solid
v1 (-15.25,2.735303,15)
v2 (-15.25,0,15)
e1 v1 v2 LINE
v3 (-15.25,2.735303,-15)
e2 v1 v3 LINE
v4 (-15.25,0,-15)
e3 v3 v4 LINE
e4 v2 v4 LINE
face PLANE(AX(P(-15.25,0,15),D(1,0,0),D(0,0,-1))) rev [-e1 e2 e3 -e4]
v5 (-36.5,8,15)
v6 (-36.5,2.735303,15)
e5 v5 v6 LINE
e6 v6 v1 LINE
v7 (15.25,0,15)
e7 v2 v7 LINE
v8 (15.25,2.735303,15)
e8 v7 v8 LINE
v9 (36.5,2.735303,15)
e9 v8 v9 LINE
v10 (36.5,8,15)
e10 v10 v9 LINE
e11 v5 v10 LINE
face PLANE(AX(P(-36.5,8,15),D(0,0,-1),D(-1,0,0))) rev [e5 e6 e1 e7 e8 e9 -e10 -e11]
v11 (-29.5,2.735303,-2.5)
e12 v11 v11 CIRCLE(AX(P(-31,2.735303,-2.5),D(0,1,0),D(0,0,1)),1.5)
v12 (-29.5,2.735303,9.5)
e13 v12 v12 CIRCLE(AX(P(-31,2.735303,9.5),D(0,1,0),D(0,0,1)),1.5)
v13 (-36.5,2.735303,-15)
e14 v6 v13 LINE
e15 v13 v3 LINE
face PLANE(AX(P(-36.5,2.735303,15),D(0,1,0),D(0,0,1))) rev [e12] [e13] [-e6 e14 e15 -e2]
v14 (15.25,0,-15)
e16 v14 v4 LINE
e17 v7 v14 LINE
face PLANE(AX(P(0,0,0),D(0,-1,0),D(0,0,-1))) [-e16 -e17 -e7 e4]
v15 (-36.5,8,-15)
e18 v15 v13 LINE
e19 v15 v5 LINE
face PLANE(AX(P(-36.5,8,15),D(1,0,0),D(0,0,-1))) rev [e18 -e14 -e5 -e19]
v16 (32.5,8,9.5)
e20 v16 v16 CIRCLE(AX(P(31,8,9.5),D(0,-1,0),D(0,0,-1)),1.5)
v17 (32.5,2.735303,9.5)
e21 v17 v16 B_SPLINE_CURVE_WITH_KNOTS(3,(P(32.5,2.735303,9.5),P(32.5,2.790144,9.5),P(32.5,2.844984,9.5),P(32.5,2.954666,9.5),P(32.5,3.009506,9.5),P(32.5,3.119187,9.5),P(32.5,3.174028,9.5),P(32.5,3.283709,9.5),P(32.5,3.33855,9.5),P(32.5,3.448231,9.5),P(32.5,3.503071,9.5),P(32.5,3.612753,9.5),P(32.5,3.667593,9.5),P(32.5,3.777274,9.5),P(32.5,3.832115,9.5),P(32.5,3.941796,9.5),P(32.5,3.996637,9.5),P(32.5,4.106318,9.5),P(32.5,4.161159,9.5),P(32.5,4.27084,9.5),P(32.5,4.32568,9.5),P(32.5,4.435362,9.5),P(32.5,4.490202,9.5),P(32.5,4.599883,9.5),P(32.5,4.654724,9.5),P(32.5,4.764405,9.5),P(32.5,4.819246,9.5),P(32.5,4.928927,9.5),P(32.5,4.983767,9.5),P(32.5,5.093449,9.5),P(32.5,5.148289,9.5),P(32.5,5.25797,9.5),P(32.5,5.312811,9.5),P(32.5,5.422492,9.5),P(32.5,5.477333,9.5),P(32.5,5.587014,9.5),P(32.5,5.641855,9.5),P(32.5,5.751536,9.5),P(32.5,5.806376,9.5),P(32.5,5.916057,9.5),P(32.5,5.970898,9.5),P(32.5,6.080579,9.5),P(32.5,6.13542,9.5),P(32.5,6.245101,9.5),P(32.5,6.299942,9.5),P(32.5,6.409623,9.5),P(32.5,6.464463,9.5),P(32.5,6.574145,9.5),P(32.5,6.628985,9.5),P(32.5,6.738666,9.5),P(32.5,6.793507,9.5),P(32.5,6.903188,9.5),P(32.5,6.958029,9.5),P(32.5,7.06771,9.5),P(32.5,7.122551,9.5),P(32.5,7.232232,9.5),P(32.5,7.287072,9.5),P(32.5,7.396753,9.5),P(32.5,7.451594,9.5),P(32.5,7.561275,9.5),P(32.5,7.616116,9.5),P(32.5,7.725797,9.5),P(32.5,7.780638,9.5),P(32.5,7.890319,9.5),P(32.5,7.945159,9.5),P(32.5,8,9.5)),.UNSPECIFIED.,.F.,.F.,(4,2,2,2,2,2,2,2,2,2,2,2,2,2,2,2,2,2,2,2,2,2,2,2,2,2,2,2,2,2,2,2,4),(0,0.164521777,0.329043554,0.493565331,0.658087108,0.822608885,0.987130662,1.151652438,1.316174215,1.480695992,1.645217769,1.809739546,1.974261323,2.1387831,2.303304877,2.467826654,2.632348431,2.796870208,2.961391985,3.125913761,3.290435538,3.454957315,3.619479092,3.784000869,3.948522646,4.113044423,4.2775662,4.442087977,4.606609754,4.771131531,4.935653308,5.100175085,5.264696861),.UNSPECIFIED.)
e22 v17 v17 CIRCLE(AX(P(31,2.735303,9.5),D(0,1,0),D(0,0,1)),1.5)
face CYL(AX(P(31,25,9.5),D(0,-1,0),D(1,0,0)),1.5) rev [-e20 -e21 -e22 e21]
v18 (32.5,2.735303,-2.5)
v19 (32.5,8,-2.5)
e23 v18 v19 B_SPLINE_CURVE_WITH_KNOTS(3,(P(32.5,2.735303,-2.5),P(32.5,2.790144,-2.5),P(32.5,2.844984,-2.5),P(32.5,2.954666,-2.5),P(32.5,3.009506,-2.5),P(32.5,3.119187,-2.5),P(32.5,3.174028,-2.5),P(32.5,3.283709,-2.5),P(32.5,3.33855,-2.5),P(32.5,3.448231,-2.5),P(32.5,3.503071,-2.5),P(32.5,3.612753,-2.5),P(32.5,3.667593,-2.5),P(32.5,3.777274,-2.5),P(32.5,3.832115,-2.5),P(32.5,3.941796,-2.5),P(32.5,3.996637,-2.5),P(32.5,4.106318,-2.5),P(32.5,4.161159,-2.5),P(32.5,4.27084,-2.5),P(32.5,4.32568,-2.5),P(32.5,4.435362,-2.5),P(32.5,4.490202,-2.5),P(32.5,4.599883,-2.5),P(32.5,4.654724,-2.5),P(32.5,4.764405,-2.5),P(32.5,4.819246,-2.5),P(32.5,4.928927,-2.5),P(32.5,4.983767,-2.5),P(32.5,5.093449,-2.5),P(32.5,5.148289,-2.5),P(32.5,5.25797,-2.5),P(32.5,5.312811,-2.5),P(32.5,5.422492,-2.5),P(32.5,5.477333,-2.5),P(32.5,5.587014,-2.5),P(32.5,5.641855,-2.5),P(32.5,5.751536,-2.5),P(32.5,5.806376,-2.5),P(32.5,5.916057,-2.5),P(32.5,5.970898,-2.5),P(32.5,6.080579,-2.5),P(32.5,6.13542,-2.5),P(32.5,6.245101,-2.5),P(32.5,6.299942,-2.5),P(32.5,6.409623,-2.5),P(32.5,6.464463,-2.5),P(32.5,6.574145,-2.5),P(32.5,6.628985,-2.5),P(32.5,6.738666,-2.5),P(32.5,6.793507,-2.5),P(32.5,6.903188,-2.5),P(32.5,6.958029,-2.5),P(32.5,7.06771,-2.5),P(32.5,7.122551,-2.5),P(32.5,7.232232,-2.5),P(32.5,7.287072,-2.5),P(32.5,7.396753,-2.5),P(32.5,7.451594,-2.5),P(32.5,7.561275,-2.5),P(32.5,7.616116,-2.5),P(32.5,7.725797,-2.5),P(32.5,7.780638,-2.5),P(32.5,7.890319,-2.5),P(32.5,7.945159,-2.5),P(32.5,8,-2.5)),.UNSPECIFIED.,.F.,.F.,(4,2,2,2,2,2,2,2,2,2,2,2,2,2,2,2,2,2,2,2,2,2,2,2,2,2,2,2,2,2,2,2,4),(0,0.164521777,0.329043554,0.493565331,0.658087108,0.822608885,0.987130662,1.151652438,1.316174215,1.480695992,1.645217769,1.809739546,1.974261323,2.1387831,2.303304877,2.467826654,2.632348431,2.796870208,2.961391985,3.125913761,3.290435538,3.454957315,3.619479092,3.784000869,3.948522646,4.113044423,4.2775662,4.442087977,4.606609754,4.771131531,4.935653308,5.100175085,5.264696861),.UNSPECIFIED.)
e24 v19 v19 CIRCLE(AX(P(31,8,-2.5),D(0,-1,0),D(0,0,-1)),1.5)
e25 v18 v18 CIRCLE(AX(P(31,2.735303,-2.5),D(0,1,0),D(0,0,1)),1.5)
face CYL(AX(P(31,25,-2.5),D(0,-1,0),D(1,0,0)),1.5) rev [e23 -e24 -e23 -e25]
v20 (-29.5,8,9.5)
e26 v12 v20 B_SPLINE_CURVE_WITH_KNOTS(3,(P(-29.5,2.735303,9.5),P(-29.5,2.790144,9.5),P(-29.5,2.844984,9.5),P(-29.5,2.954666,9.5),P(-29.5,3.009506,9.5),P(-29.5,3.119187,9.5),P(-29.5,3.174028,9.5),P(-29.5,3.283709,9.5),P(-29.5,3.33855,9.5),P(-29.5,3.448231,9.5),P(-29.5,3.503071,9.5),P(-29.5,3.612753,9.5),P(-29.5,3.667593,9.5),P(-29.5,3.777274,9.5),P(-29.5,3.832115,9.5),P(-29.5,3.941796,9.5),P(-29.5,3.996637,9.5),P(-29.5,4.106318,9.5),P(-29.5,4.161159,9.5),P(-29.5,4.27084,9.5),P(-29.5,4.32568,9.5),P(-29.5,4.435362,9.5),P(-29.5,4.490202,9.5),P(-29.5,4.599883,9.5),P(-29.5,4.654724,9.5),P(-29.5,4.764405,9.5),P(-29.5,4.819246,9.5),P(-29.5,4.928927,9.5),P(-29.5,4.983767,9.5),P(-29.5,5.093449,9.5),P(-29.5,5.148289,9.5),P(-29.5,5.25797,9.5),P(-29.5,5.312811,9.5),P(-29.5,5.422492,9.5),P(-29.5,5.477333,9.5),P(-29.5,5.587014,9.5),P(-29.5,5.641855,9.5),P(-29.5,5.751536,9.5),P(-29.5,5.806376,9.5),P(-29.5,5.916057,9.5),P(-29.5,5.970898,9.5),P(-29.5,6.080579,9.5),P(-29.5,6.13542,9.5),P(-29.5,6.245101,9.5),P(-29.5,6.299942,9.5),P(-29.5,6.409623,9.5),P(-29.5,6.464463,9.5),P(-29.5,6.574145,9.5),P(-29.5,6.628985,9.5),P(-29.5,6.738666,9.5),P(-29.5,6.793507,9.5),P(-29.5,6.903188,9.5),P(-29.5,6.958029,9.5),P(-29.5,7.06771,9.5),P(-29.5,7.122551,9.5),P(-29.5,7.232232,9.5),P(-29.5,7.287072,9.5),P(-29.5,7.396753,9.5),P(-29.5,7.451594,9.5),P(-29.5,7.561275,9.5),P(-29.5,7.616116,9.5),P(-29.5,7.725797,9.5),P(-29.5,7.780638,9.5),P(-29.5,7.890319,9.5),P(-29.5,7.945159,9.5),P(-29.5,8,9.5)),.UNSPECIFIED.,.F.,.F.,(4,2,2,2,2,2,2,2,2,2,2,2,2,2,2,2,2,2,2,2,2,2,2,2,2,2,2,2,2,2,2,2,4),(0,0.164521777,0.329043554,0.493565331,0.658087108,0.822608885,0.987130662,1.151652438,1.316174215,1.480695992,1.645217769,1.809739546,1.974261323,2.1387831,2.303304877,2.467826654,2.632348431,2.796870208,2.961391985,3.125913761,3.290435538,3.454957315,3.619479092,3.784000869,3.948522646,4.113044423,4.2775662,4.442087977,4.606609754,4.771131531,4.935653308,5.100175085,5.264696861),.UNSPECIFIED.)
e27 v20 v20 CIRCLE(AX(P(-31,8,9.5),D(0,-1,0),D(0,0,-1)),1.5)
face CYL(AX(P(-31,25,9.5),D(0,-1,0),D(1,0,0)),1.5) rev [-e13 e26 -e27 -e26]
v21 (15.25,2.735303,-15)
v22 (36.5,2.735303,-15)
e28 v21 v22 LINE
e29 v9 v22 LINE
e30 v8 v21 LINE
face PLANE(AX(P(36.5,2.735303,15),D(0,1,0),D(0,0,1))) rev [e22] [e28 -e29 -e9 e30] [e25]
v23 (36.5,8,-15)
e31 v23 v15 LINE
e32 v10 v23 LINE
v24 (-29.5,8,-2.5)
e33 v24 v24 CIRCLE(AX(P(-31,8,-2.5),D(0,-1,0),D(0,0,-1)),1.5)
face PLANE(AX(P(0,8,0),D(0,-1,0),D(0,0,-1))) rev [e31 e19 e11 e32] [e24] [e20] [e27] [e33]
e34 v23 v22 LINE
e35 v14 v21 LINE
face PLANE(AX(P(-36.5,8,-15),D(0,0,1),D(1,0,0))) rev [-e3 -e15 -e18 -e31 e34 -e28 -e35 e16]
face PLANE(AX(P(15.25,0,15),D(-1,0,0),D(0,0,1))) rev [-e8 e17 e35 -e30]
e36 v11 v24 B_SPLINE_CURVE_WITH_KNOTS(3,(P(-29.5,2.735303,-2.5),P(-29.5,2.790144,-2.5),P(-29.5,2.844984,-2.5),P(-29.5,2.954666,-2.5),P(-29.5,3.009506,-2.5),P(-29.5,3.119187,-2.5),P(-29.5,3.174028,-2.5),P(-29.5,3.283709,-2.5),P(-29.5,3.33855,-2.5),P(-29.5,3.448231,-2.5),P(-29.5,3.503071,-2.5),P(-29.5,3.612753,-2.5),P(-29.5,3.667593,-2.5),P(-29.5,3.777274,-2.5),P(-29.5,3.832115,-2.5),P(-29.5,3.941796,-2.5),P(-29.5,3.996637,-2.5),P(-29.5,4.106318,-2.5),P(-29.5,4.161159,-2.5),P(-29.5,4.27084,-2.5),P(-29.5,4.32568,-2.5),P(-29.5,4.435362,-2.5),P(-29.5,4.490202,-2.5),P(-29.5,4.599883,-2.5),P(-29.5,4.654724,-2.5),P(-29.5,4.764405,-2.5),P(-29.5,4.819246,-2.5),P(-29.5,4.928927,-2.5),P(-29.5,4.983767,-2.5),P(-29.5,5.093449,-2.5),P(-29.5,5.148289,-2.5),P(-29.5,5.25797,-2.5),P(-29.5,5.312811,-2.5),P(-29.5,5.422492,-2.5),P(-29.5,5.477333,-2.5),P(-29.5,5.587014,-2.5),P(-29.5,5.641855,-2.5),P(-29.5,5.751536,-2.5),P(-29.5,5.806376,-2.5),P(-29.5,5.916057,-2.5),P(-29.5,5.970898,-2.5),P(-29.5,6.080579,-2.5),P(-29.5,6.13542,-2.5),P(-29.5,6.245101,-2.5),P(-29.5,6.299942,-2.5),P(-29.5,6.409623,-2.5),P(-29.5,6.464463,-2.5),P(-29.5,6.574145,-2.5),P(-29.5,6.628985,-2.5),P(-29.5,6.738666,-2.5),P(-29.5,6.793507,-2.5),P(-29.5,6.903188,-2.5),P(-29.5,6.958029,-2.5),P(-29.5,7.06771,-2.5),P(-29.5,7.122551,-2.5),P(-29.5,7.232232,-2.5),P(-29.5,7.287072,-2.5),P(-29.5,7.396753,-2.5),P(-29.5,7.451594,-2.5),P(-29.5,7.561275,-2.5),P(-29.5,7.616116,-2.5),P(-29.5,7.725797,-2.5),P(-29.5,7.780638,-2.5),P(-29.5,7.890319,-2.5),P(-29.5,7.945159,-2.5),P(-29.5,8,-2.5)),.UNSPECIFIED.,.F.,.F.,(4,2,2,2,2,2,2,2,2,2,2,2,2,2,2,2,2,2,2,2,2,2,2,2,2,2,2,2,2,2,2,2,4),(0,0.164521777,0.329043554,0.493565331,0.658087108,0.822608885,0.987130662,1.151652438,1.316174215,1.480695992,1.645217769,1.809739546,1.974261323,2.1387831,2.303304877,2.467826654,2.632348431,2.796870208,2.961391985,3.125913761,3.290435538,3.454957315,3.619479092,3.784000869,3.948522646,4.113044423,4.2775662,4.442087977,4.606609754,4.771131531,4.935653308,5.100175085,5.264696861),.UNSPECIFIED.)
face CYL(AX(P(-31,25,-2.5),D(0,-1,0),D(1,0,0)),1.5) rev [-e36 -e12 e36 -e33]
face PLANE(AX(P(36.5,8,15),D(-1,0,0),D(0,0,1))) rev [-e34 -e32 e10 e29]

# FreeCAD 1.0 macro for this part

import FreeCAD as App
import Part
import Sketcher

V = App.Vector
Q = App.Units.Quantity

doc = App.newDocument("Part")
params = doc.addObject("Spreadsheet::Sheet", "Params")
for row, (alias, value) in enumerate([
    ("sketch1_width", "73 mm"),
    ("sketch1_height", "30 mm"),
    ("pad1_length", "8 mm"),
    ("sketch2_width", "21.25 mm"),
    ("sketch3_diameter", "3 mm"),
    ("pocket2_length", "90 mm"),
], start=1):
    params.set(f"A{row}", alias)
    params.set(f"B{row}", "=" + value)
    params.setAlias(f"B{row}", alias)

body = doc.addObject("PartDesign::Body", "Body")

sketch1 = body.newObject("Sketcher::SketchObject", "Sketch")
sketch1.AttachmentSupport = (doc.getObject("XZ_Plane"), [""])
sketch1.MapMode = "FlatFace"
sketch1.addGeometry(Part.LineSegment(V(-36, -15, 0), V(-36, 15, 0)), False)
sketch1.addGeometry(Part.LineSegment(V(-36, 15, 0), V(36, 15, 0)), False)
sketch1.addGeometry(Part.LineSegment(V(36, 15, 0), V(36, -15, 0)), False)
sketch1.addGeometry(Part.LineSegment(V(36, -15, 0), V(-36, -15, 0)), False)
sketch1.addConstraint(Sketcher.Constraint("Coincident", 0, 2, 1, 1))
sketch1.addConstraint(Sketcher.Constraint("Coincident", 1, 2, 2, 1))
sketch1.addConstraint(Sketcher.Constraint("Coincident", 2, 2, 3, 1))
sketch1.addConstraint(Sketcher.Constraint("Coincident", 3, 2, 0, 1))
sketch1.addConstraint(Sketcher.Constraint("Vertical", 0))
sketch1.addConstraint(Sketcher.Constraint("Horizontal", 1))
sketch1.addConstraint(Sketcher.Constraint("Vertical", 2))
sketch1.addConstraint(Sketcher.Constraint("Horizontal", 3))
sketch1.addConstraint(Sketcher.Constraint("Symmetric", 0, 2, 2, 2, -1, 1))
sketch1.addConstraint(Sketcher.Constraint("DistanceX", 1, 1, 1, 2, Q("73 mm")))
sketch1.addConstraint(Sketcher.Constraint("DistanceY", 0, 1, 0, 2, Q("30 mm")))
sketch1.setExpression("Constraints[9]", "Params.sketch1_width")
sketch1.setExpression("Constraints[10]", "Params.sketch1_height")
pad1 = body.newObject("PartDesign::Pad", "Pad")
pad1.Profile = sketch1
pad1.setExpression("Length", "Params.pad1_length")
pad1.Reversed = True

sketch2 = body.newObject("Sketcher::SketchObject", "Sketch001")
sketch2.AttachmentSupport = (doc.getObject("XY_Plane"), [""])
sketch2.MapMode = "FlatFace"
sketch2.AttachmentOffset = App.Placement(V(0, 0, -15), App.Rotation())
sketch2.addGeometry(Part.LineSegment(V(36.5, 2.7, 0), V(36.5, 0, 0)), False)
sketch2.addGeometry(Part.LineSegment(V(36.5, 0, 0), V(15.2, 0, 0)), False)
sketch2.addGeometry(Part.LineSegment(V(15.2, 0, 0), V(15.2, 2.7, 0)), False)
sketch2.addGeometry(Part.LineSegment(V(15.2, 2.7, 0), V(36.5, 2.7, 0)), False)
sketch2.addGeometry(Part.LineSegment(V(-15.2, 2.7, 0), V(-15.2, 0, 0)), False)
sketch2.addGeometry(Part.LineSegment(V(-15.2, 0, 0), V(-36.5, 0, 0)), False)
sketch2.addGeometry(Part.LineSegment(V(-36.5, 0, 0), V(-36.5, 2.7, 0)), False)
sketch2.addGeometry(Part.LineSegment(V(-36.5, 2.7, 0), V(-15.2, 2.7, 0)), False)
sketch2.addConstraint(Sketcher.Constraint("Coincident", 0, 2, 1, 1))
sketch2.addConstraint(Sketcher.Constraint("Coincident", 1, 2, 2, 1))
sketch2.addConstraint(Sketcher.Constraint("Coincident", 2, 2, 3, 1))
sketch2.addConstraint(Sketcher.Constraint("Coincident", 3, 2, 0, 1))
sketch2.addConstraint(Sketcher.Constraint("Coincident", 4, 2, 5, 1))
sketch2.addConstraint(Sketcher.Constraint("Coincident", 5, 2, 6, 1))
sketch2.addConstraint(Sketcher.Constraint("Coincident", 6, 2, 7, 1))
sketch2.addConstraint(Sketcher.Constraint("Coincident", 7, 2, 4, 1))
sketch2.addConstraint(Sketcher.Constraint("Vertical", 0))
sketch2.addConstraint(Sketcher.Constraint("Horizontal", 1))
sketch2.addConstraint(Sketcher.Constraint("Vertical", 2))
sketch2.addConstraint(Sketcher.Constraint("Horizontal", 3))
sketch2.addConstraint(Sketcher.Constraint("Vertical", 4))
sketch2.addConstraint(Sketcher.Constraint("Horizontal", 5))
sketch2.addConstraint(Sketcher.Constraint("Vertical", 6))
sketch2.addConstraint(Sketcher.Constraint("Horizontal", 7))
sketch2.addConstraint(Sketcher.Constraint("Symmetric", 1, 2, 4, 2, -1, 1))
sketch2.addConstraint(Sketcher.Constraint("Symmetric", 0, 2, 5, 2, -2))
sketch2.addConstraint(Sketcher.Constraint("Horizontal", 3, 2, 6, 2))
sketch2.addConstraint(Sketcher.Constraint("DistanceX", 5, 2, 0, 2, Q("73 mm")))
sketch2.addConstraint(Sketcher.Constraint("DistanceX", 1, 2, 1, 1, Q("21.25 mm")))
sketch2.addConstraint(Sketcher.Constraint("DistanceY", 0, 2, 0, 1, Q("2.735303 mm")))
sketch2.setExpression("Constraints[20]", "Params.sketch2_width")
pocket1 = body.newObject("PartDesign::Pocket", "Pocket")
pocket1.Profile = sketch2
pocket1.Type = "ThroughAll"
pocket1.Reversed = True

sketch3 = body.newObject("Sketcher::SketchObject", "Sketch002")
sketch3.AttachmentSupport = (doc.getObject("XZ_Plane"), [""])
sketch3.MapMode = "FlatFace"
sketch3.AttachmentOffset = App.Placement(V(0, 0, 20), App.Rotation())
sketch3.addGeometry(Part.Circle(V(31, -2.5, 0), V(0, 0, 1), 1.5), False)
sketch3.addGeometry(Part.Circle(V(-31, -2.5, 0), V(0, 0, 1), 1.5), False)
sketch3.addGeometry(Part.Circle(V(-31, 9.5, 0), V(0, 0, 1), 1.5), False)
sketch3.addGeometry(Part.Circle(V(31, 9.5, 0), V(0, 0, 1), 1.5), False)
sketch3.addConstraint(Sketcher.Constraint("Equal", 0, 1))
sketch3.addConstraint(Sketcher.Constraint("Equal", 1, 2))
sketch3.addConstraint(Sketcher.Constraint("Equal", 2, 3))
sketch3.addConstraint(Sketcher.Constraint("Symmetric", 0, 3, 1, 3, -2))
sketch3.addConstraint(Sketcher.Constraint("Symmetric", 2, 3, 3, 3, -2))
sketch3.addConstraint(Sketcher.Constraint("Vertical", 1, 3, 2, 3))
sketch3.addConstraint(Sketcher.Constraint("Diameter", 0, Q("3 mm")))
sketch3.addConstraint(Sketcher.Constraint("DistanceX", -1, 1, 0, 3, Q("31 mm")))
sketch3.addConstraint(Sketcher.Constraint("DistanceY", 1, 3, 2, 3, Q("12 mm")))
sketch3.addConstraint(Sketcher.Constraint("DistanceY", 0, 3, -1, 1, Q("2.5 mm")))
sketch3.setExpression("Constraints[6]", "Params.sketch3_diameter")
pocket2 = body.newObject("PartDesign::Pocket", "Pocket001")
pocket2.Profile = sketch3
pocket2.setExpression("Length", "Params.pocket2_length")
pocket2.Midplane = True

doc.recompute()
